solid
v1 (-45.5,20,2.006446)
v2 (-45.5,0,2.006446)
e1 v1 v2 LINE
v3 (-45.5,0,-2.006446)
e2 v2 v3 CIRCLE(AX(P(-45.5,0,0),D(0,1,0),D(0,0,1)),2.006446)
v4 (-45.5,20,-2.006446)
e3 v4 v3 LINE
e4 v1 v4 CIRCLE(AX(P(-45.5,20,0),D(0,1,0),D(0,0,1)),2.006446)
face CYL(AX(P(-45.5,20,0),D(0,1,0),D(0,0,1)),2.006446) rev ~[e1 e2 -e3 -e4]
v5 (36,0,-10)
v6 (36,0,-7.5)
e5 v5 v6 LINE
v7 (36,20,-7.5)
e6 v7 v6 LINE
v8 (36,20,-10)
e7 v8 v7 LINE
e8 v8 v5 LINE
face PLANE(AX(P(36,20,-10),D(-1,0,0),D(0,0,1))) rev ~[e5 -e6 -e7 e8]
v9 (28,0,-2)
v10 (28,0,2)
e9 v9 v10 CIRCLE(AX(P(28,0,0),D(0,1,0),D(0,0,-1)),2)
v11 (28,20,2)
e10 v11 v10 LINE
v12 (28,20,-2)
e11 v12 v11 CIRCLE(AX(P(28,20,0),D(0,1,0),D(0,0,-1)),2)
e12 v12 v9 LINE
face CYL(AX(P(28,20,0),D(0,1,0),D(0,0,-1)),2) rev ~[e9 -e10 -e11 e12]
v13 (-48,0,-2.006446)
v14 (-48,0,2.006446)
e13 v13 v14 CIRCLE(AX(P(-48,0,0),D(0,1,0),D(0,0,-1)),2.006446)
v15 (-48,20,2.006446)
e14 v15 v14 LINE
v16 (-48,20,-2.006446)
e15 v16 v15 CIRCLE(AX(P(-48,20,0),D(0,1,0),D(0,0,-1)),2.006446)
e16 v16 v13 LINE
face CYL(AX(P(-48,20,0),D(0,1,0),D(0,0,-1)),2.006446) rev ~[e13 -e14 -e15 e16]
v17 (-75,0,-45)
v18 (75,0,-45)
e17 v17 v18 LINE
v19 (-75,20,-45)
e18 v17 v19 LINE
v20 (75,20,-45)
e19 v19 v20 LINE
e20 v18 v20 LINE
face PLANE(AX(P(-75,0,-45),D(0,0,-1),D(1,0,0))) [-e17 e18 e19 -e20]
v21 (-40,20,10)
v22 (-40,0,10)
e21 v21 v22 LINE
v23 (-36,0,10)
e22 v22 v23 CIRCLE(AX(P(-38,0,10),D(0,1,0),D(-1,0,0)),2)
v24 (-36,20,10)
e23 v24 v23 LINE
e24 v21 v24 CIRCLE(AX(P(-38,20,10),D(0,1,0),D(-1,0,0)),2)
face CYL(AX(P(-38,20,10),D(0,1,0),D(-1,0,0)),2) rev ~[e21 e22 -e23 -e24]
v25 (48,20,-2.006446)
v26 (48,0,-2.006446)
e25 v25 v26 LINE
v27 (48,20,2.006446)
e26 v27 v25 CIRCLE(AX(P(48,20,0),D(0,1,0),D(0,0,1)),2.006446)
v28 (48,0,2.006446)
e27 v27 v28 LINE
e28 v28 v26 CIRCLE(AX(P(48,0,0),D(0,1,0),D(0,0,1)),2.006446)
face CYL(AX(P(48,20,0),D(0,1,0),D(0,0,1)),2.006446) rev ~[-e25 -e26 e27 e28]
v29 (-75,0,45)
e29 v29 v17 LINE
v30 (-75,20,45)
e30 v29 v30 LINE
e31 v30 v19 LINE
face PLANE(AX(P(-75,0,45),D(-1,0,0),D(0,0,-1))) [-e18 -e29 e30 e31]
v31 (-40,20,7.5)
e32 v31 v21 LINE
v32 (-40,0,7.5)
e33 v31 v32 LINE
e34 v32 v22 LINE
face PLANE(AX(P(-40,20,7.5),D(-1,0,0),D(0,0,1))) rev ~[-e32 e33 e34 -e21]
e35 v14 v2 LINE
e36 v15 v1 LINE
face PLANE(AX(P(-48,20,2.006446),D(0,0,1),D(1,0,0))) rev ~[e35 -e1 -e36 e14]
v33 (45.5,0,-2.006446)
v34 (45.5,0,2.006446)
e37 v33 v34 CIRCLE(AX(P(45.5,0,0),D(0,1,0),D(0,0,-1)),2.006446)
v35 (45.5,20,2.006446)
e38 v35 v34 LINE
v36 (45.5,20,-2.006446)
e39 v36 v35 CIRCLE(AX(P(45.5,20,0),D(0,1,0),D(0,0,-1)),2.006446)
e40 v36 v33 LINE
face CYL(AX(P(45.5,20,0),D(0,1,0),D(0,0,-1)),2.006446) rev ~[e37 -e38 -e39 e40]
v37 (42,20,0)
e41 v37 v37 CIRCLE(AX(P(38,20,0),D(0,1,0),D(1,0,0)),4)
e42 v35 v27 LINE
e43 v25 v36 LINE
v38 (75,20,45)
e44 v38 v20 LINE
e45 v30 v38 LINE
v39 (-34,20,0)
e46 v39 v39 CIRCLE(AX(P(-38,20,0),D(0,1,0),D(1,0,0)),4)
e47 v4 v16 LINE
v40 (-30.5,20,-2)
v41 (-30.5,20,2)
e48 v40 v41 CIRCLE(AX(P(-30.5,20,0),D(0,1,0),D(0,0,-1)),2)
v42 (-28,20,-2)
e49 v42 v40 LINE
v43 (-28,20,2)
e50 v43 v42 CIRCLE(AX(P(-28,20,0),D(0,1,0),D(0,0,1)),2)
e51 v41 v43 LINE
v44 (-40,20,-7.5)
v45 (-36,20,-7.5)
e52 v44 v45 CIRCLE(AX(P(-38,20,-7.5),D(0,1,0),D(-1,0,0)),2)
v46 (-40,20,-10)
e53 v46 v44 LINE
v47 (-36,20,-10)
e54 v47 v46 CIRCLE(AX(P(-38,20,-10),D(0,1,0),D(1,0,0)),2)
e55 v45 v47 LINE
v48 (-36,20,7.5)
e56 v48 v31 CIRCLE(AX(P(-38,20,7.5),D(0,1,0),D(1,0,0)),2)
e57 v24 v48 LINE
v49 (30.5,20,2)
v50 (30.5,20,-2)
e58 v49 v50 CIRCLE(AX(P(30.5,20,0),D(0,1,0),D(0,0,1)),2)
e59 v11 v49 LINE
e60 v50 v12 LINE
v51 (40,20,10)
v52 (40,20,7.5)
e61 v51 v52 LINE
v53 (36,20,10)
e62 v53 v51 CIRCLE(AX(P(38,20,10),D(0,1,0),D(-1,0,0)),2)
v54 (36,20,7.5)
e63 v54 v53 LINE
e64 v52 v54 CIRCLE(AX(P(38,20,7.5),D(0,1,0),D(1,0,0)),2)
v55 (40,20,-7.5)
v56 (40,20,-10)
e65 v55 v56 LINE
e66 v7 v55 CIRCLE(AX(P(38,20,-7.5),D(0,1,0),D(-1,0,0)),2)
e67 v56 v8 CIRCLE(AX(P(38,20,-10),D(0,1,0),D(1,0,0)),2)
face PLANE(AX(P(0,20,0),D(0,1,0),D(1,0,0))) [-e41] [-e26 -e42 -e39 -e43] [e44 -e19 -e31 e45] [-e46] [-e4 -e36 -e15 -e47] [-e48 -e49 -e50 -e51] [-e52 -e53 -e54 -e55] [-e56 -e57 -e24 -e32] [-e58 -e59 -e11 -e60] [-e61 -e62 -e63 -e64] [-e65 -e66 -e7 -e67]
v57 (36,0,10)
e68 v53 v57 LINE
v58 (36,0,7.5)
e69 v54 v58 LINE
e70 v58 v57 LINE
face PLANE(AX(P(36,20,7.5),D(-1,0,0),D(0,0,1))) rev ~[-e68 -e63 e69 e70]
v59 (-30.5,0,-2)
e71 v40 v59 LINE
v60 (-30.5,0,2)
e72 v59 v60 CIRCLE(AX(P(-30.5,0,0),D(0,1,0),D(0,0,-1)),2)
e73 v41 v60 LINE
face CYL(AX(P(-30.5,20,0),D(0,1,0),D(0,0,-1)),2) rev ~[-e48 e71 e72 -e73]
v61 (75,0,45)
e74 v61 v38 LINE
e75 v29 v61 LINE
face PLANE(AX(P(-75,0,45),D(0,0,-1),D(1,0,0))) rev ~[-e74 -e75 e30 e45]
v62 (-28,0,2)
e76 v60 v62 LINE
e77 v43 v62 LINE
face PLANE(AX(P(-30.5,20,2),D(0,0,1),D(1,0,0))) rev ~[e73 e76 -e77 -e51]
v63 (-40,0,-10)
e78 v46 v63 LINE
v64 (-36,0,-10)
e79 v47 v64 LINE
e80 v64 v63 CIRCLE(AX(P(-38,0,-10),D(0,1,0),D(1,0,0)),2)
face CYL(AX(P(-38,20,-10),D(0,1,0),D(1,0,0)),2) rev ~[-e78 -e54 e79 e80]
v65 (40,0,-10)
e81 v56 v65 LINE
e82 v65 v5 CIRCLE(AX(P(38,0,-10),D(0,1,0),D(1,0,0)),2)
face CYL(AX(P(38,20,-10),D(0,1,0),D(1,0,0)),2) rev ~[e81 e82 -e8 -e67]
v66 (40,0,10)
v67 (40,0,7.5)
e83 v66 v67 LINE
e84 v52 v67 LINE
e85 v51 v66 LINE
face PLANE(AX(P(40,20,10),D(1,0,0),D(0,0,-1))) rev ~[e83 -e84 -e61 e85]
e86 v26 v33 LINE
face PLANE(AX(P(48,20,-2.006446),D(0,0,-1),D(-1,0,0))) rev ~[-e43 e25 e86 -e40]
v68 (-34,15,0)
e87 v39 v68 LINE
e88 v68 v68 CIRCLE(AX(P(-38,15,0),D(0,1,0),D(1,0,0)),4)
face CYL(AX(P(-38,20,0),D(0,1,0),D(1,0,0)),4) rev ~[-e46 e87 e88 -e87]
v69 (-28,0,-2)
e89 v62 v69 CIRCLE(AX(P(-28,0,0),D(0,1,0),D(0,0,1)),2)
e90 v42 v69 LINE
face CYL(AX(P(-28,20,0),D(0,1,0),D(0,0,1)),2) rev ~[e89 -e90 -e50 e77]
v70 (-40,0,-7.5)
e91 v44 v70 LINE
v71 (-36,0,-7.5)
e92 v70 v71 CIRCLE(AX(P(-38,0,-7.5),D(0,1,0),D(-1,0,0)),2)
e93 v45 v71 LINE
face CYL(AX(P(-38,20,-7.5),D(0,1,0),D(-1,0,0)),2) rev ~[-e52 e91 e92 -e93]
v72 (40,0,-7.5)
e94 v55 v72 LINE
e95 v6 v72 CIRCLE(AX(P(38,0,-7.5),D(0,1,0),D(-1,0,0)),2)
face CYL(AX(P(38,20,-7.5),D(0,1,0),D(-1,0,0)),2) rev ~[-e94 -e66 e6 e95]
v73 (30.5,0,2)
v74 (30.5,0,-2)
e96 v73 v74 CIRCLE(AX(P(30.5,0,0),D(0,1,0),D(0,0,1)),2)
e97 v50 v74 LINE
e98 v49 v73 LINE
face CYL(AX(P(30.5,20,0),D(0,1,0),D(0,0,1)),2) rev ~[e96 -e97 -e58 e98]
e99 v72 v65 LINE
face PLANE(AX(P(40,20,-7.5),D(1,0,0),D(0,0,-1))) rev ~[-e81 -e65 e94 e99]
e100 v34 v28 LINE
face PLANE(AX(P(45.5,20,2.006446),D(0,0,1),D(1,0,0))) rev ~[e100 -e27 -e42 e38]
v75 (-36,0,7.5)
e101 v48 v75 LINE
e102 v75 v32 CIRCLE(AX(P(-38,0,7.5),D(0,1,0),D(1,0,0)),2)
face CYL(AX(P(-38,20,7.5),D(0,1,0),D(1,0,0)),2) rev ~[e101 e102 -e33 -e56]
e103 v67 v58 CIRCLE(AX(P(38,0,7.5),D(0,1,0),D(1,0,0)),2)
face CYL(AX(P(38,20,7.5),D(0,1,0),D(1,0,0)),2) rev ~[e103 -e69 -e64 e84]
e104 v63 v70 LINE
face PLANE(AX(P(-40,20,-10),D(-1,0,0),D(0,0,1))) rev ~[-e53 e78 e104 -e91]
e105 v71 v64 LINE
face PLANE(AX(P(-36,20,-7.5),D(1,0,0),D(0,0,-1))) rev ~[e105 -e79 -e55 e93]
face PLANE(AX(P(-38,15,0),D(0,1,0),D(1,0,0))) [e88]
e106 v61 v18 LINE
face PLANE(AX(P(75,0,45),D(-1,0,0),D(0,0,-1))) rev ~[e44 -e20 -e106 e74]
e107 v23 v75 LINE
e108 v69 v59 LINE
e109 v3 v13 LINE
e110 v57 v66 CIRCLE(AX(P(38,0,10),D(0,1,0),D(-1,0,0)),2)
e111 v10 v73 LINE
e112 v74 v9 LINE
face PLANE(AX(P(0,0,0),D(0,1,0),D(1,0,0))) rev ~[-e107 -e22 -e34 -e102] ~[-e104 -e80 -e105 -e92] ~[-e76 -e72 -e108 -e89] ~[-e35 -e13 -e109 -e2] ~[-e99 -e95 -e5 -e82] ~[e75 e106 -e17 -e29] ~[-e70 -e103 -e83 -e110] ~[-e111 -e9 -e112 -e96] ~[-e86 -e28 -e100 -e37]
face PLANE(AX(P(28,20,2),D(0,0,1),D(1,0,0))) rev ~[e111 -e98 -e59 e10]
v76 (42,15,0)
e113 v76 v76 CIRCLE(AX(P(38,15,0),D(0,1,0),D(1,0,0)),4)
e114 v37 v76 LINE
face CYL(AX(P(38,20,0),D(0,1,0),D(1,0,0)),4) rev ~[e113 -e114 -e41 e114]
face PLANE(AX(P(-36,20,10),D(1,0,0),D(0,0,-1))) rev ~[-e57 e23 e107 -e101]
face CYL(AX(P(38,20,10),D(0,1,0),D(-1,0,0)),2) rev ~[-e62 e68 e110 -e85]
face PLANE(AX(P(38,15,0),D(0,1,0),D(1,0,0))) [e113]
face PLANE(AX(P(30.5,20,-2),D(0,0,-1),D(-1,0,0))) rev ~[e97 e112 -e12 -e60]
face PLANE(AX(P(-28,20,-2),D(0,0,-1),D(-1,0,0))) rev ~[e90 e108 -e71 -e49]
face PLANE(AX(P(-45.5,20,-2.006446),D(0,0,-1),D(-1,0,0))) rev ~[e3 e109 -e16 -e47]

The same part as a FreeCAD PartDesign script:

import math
import FreeCAD as App
import Part
import Sketcher

V = App.Vector
Q = App.Units.Quantity


def add_polygon(sketch, points):
    """Adds a closed chain of lines whose ends are joined by coincident constraints."""
    first, n = sketch.GeometryCount, len(points)
    for a, b in zip(points, points[1:] + points[:1]):
        sketch.addGeometry(Part.LineSegment(App.Vector(*a, 0), App.Vector(*b, 0)), False)
    for i in range(n):
        sketch.addConstraint(Sketcher.Constraint("Coincident", first + i, 2, first + (i + 1) % n, 1))

doc = App.newDocument("Part")
body = doc.addObject("PartDesign::Body", "Body")

# Sketch on XZ plane
sketch1 = body.newObject("Sketcher::SketchObject", "Sketch")
sketch1.AttachmentSupport = (doc.getObject("XZ_Plane"), [""])
sketch1.MapMode = "FlatFace"
add_polygon(sketch1, [(-75, -45), (-75, 45), (75, 45), (75, -45)])  # lines 0-3
sketch1.addConstraint(Sketcher.Constraint("Vertical", 0))
sketch1.addConstraint(Sketcher.Constraint("Horizontal", 1))
sketch1.addConstraint(Sketcher.Constraint("Vertical", 2))
sketch1.addConstraint(Sketcher.Constraint("Horizontal", 3))
sketch1.addConstraint(Sketcher.Constraint("Symmetric", 0, 2, 2, 2, -1, 1))
sketch1.addConstraint(Sketcher.Constraint("DistanceX", 1, 1, 1, 2, Q("150 mm")))
sketch1.addConstraint(Sketcher.Constraint("DistanceY", 0, 1, 0, 2, Q("90 mm")))
pad1 = body.newObject("PartDesign::Pad", "Pad")
pad1.Profile = sketch1
pad1.Length = 20
pad1.Reversed = True

# Sketch on XZ plane
sketch2 = body.newObject("Sketcher::SketchObject", "Sketch001")
sketch2.AttachmentSupport = (doc.getObject("XZ_Plane"), [""])
sketch2.MapMode = "FlatFace"
sketch2.AttachmentOffset = App.Placement(V(0, 0, -20), App.Rotation())
sketch2.addGeometry(Part.Circle(V(-38, 0, 0), V(0, 0, 1), 4), False)
sketch2.addGeometry(Part.Circle(V(38, 0, 0), V(0, 0, 1), 4), False)
sketch2.addConstraint(Sketcher.Constraint("Equal", 0, 1))
sketch2.addConstraint(Sketcher.Constraint("Symmetric", 0, 3, 1, 3, -1, 1))
sketch2.addConstraint(Sketcher.Constraint("PointOnObject", 0, 3, -1))
sketch2.addConstraint(Sketcher.Constraint("Diameter", 0, Q("8 mm")))
sketch2.addConstraint(Sketcher.Constraint("DistanceX", 0, 3, -1, 1, Q("38 mm")))
pocket1 = body.newObject("PartDesign::Pocket", "Pocket")
pocket1.Profile = sketch2
pocket1.Length = 5
pocket1.Reversed = True

# Sketch on XZ plane
sketch3 = body.newObject("Sketcher::SketchObject", "Sketch002")
sketch3.AttachmentSupport = (doc.getObject("XZ_Plane"), [""])
sketch3.MapMode = "FlatFace"
sketch3.AttachmentOffset = App.Placement(V(0, 0, -20), App.Rotation())
sketch3.addGeometry(Part.LineSegment(V(-45.5, -2, 0), V(-48, -2, 0)), False)
sketch3.addGeometry(Part.ArcOfCircle(Part.Circle(V(-48, 0, 0), V(0, 0, 1), 2), math.radians(90), math.radians(270)), False)
sketch3.addGeometry(Part.LineSegment(V(-48, 2, 0), V(-45.5, 2, 0)), False)
sketch3.addGeometry(Part.ArcOfCircle(Part.Circle(V(-45.5, 0, 0), V(0, 0, 1), 2), math.radians(-90), math.radians(90)), False)
sketch3.addGeometry(Part.LineSegment(V(-36, -7.5, 0), V(-36, -10, 0)), False)
sketch3.addGeometry(Part.ArcOfCircle(Part.Circle(V(-38, -10, 0), V(0, 0, 1), 2), math.radians(180), math.radians(360)), False)
sketch3.addGeometry(Part.LineSegment(V(-40, -10, 0), V(-40, -7.5, 0)), False)
sketch3.addGeometry(Part.ArcOfCircle(Part.Circle(V(-38, -7.5, 0), V(0, 0, 1), 2), math.radians(0), math.radians(180)), False)
sketch3.addGeometry(Part.LineSegment(V(-28, -2, 0), V(-30.5, -2, 0)), False)
sketch3.addGeometry(Part.ArcOfCircle(Part.Circle(V(-30.5, 0, 0), V(0, 0, 1), 2), math.radians(90), math.radians(270)), False)
sketch3.addGeometry(Part.LineSegment(V(-30.5, 2, 0), V(-28, 2, 0)), False)
sketch3.addGeometry(Part.ArcOfCircle(Part.Circle(V(-28, 0, 0), V(0, 0, 1), 2), math.radians(-90), math.radians(90)), False)
sketch3.addGeometry(Part.LineSegment(V(-40, 7.5, 0), V(-40, 10, 0)), False)
sketch3.addGeometry(Part.ArcOfCircle(Part.Circle(V(-38, 10, 0), V(0, 0, 1), 2), math.radians(0), math.radians(180)), False)
sketch3.addGeometry(Part.LineSegment(V(-36, 10, 0), V(-36, 7.5, 0)), False)
sketch3.addGeometry(Part.ArcOfCircle(Part.Circle(V(-38, 7.5, 0), V(0, 0, 1), 2), math.radians(180), math.radians(360)), False)
sketch3.addGeometry(Part.ArcOfCircle(Part.Circle(V(48, 0, 0), V(0, 0, 1), 2), math.radians(-90), math.radians(90)), False)
sketch3.addGeometry(Part.LineSegment(V(48, -2, 0), V(45.5, -2, 0)), False)
sketch3.addGeometry(Part.ArcOfCircle(Part.Circle(V(45.5, 0, 0), V(0, 0, 1), 2), math.radians(90), math.radians(270)), False)
sketch3.addGeometry(Part.LineSegment(V(45.5, 2, 0), V(48, 2, 0)), False)
sketch3.addGeometry(Part.ArcOfCircle(Part.Circle(V(38, -10, 0), V(0, 0, 1), 2), math.radians(180), math.radians(360)), False)
sketch3.addGeometry(Part.LineSegment(V(36, -10, 0), V(36, -7.5, 0)), False)
sketch3.addGeometry(Part.ArcOfCircle(Part.Circle(V(38, -7.5, 0), V(0, 0, 1), 2), math.radians(0), math.radians(180)), False)
sketch3.addGeometry(Part.LineSegment(V(40, -7.5, 0), V(40, -10, 0)), False)
sketch3.addGeometry(Part.ArcOfCircle(Part.Circle(V(30.5, 0, 0), V(0, 0, 1), 2), math.radians(-90), math.radians(90)), False)
sketch3.addGeometry(Part.LineSegment(V(30.5, -2, 0), V(28, -2, 0)), False)
sketch3.addGeometry(Part.ArcOfCircle(Part.Circle(V(28, 0, 0), V(0, 0, 1), 2), math.radians(90), math.radians(270)), False)
sketch3.addGeometry(Part.LineSegment(V(28, 2, 0), V(30.5, 2, 0)), False)
sketch3.addGeometry(Part.ArcOfCircle(Part.Circle(V(38, 10, 0), V(0, 0, 1), 2), math.radians(0), math.radians(180)), False)
sketch3.addGeometry(Part.LineSegment(V(40, 10, 0), V(40, 7.5, 0)), False)
sketch3.addGeometry(Part.ArcOfCircle(Part.Circle(V(38, 7.5, 0), V(0, 0, 1), 2), math.radians(180), math.radians(360)), False)
sketch3.addGeometry(Part.LineSegment(V(36, 7.5, 0), V(36, 10, 0)), False)
sketch3.addConstraint(Sketcher.Constraint("Tangent", 0, 2, 1, 2))
sketch3.addConstraint(Sketcher.Constraint("Tangent", 1, 1, 2, 1))
sketch3.addConstraint(Sketcher.Constraint("Tangent", 2, 2, 3, 2))
sketch3.addConstraint(Sketcher.Constraint("Tangent", 3, 1, 0, 1))
sketch3.addConstraint(Sketcher.Constraint("Tangent", 4, 2, 5, 2))
sketch3.addConstraint(Sketcher.Constraint("Tangent", 5, 1, 6, 1))
sketch3.addConstraint(Sketcher.Constraint("Tangent", 6, 2, 7, 2))
sketch3.addConstraint(Sketcher.Constraint("Tangent", 7, 1, 4, 1))
sketch3.addConstraint(Sketcher.Constraint("Tangent", 8, 2, 9, 2))
sketch3.addConstraint(Sketcher.Constraint("Tangent", 9, 1, 10, 1))
sketch3.addConstraint(Sketcher.Constraint("Tangent", 10, 2, 11, 2))
sketch3.addConstraint(Sketcher.Constraint("Tangent", 11, 1, 8, 1))
sketch3.addConstraint(Sketcher.Constraint("Tangent", 12, 2, 13, 2))
sketch3.addConstraint(Sketcher.Constraint("Tangent", 13, 1, 14, 1))
sketch3.addConstraint(Sketcher.Constraint("Tangent", 14, 2, 15, 2))
sketch3.addConstraint(Sketcher.Constraint("Tangent", 15, 1, 12, 1))
sketch3.addConstraint(Sketcher.Constraint("Tangent", 16, 1, 17, 1))
sketch3.addConstraint(Sketcher.Constraint("Tangent", 17, 2, 18, 2))
sketch3.addConstraint(Sketcher.Constraint("Tangent", 18, 1, 19, 1))
sketch3.addConstraint(Sketcher.Constraint("Tangent", 19, 2, 16, 2))
sketch3.addConstraint(Sketcher.Constraint("Tangent", 20, 1, 21, 1))
sketch3.addConstraint(Sketcher.Constraint("Tangent", 21, 2, 22, 2))
sketch3.addConstraint(Sketcher.Constraint("Tangent", 22, 1, 23, 1))
sketch3.addConstraint(Sketcher.Constraint("Tangent", 23, 2, 20, 2))
sketch3.addConstraint(Sketcher.Constraint("Tangent", 24, 1, 25, 1))
sketch3.addConstraint(Sketcher.Constraint("Tangent", 25, 2, 26, 2))
sketch3.addConstraint(Sketcher.Constraint("Tangent", 26, 1, 27, 1))
sketch3.addConstraint(Sketcher.Constraint("Tangent", 27, 2, 24, 2))
sketch3.addConstraint(Sketcher.Constraint("Tangent", 28, 1, 29, 1))
sketch3.addConstraint(Sketcher.Constraint("Tangent", 29, 2, 30, 2))
sketch3.addConstraint(Sketcher.Constraint("Tangent", 30, 1, 31, 1))
sketch3.addConstraint(Sketcher.Constraint("Tangent", 31, 2, 28, 2))
sketch3.addConstraint(Sketcher.Constraint("Horizontal", 0))
sketch3.addConstraint(Sketcher.Constraint("Horizontal", 2))
sketch3.addConstraint(Sketcher.Constraint("Vertical", 4))
sketch3.addConstraint(Sketcher.Constraint("Vertical", 6))
sketch3.addConstraint(Sketcher.Constraint("Horizontal", 8))
sketch3.addConstraint(Sketcher.Constraint("Horizontal", 10))
sketch3.addConstraint(Sketcher.Constraint("Vertical", 12))
sketch3.addConstraint(Sketcher.Constraint("Vertical", 14))
sketch3.addConstraint(Sketcher.Constraint("Horizontal", 17))
sketch3.addConstraint(Sketcher.Constraint("Horizontal", 19))
sketch3.addConstraint(Sketcher.Constraint("Vertical", 21))
sketch3.addConstraint(Sketcher.Constraint("Vertical", 23))
sketch3.addConstraint(Sketcher.Constraint("Horizontal", 25))
sketch3.addConstraint(Sketcher.Constraint("Horizontal", 27))
sketch3.addConstraint(Sketcher.Constraint("Vertical", 29))
sketch3.addConstraint(Sketcher.Constraint("Vertical", 31))
sketch3.addConstraint(Sketcher.Constraint("Equal", 7, 9))
sketch3.addConstraint(Sketcher.Constraint("Equal", 11, 13))
sketch3.addConstraint(Sketcher.Constraint("Equal", 3, 16))
sketch3.addConstraint(Sketcher.Constraint("Equal", 15, 20))
sketch3.addConstraint(Sketcher.Constraint("Equal", 22, 24))
sketch3.addConstraint(Sketcher.Constraint("Equal", 26, 28))
sketch3.addConstraint(Sketcher.Constraint("Symmetric", 1, 3, 16, 3, -1, 1))
sketch3.addConstraint(Sketcher.Constraint("Symmetric", 13, 3, 20, 3, -1, 1))
sketch3.addConstraint(Sketcher.Constraint("Symmetric", 9, 3, 24, 3, -1, 1))
sketch3.addConstraint(Sketcher.Constraint("Symmetric", 5, 3, 28, 3, -1, 1))
sketch3.addConstraint(Sketcher.Constraint("Symmetric", 3, 3, 18, 3, -2))
sketch3.addConstraint(Sketcher.Constraint("Symmetric", 5, 3, 20, 3, -2))
sketch3.addConstraint(Sketcher.Constraint("Symmetric", 11, 3, 26, 3, -2))
sketch3.addConstraint(Sketcher.Constraint("Horizontal", 7, 3, 22, 3))
sketch3.addConstraint(Sketcher.Constraint("Horizontal", 15, 3, 30, 3))
sketch3.addConstraint(Sketcher.Constraint("Equal", 2, 8))
sketch3.addConstraint(Sketcher.Constraint("Equal", 27, 4))
sketch3.addConstraint(Sketcher.Constraint("Equal", 6, 12))
sketch3.addConstraint(Sketcher.Constraint("Radius", 5, Q("2 mm")))
sketch3.addConstraint(Sketcher.Constraint("DistanceX", 0, 2, 0, 1, Q("2.5 mm")))
sketch3.addConstraint(Sketcher.Constraint("DistanceX", 1, 3, -1, 1, Q("48 mm")))
sketch3.addConstraint(Sketcher.Constraint("DistanceX", 5, 3, -1, 1, Q("38 mm")))
sketch3.addConstraint(Sketcher.Constraint("DistanceY", 5, 3, -1, 1, Q("10 mm")))
sketch3.addConstraint(Sketcher.Constraint("DistanceX", 11, 3, -1, 1, Q("28 mm")))
sketch3.addConstraint(Sketcher.Constraint("Radius", 1, Q("2.006446 mm")))
pocket2 = body.newObject("PartDesign::Pocket", "Pocket001")
pocket2.Profile = sketch3
pocket2.Type = "ThroughAll"
pocket2.Reversed = True

doc.recompute()
